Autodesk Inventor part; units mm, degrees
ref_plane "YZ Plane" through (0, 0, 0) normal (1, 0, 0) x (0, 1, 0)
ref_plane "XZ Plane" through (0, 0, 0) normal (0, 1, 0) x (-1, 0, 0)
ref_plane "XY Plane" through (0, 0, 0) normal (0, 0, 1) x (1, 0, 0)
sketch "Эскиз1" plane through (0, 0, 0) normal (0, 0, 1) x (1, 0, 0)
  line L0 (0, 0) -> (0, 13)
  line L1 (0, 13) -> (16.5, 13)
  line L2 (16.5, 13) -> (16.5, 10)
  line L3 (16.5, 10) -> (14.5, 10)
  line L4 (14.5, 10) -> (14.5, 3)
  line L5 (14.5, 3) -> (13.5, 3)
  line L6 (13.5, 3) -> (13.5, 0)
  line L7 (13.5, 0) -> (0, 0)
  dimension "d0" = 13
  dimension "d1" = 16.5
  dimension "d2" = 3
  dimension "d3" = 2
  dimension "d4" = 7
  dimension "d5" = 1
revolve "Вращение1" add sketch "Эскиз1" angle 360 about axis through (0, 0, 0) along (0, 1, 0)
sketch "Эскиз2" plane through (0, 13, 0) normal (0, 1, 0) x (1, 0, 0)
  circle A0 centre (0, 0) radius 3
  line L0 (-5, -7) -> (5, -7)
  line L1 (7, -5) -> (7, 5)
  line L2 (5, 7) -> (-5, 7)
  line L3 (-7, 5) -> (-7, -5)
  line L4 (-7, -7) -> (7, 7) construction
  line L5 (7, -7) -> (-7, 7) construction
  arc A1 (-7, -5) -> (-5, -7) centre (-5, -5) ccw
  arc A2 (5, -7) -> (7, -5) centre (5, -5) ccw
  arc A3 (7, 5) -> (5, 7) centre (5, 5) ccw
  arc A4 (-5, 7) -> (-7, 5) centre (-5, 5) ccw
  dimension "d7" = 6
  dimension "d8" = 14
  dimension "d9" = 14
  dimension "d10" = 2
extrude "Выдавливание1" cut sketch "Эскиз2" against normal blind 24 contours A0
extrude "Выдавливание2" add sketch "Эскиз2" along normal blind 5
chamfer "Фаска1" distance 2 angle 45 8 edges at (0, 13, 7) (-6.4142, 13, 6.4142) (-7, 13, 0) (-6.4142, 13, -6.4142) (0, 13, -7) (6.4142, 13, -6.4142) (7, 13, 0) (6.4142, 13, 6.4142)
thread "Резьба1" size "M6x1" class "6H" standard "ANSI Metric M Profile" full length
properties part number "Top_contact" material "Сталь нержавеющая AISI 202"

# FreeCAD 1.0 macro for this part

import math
import FreeCAD as App
import Part
import Sketcher
Q = App.Units.Quantity


def edges_at(feature, points):
    """Names of the edges that pass closest to the given points."""
    edges = feature.Shape.Edges
    near = lambda p: min(range(len(edges)), key=lambda i: edges[i].distToShape(Part.Vertex(*p))[0])
    return sorted({f"Edge{near(p) + 1}" for p in points})

doc = App.newDocument("Part")
body = doc.addObject("PartDesign::Body", "Body")

sketch1 = body.newObject("Sketcher::SketchObject", "Sketch")
sketch1.AttachmentSupport = (doc.getObject("XY_Plane"), [""])
sketch1.MapMode = "FlatFace"
sketch1.addGeometry(Part.LineSegment(App.Vector(0, 13, 0), App.Vector(0, 0, 0)), False)
sketch1.addGeometry(Part.LineSegment(App.Vector(0, 0, 0), App.Vector(13.5, 0, 0)), False)
sketch1.addGeometry(Part.LineSegment(App.Vector(13.5, 0, 0), App.Vector(13.5, 3, 0)), False)
sketch1.addGeometry(Part.LineSegment(App.Vector(13.5, 3, 0), App.Vector(14.5, 3, 0)), False)
sketch1.addGeometry(Part.LineSegment(App.Vector(14.5, 3, 0), App.Vector(14.5, 10, 0)), False)
sketch1.addGeometry(Part.LineSegment(App.Vector(14.5, 10, 0), App.Vector(16.5, 10, 0)), False)
sketch1.addGeometry(Part.LineSegment(App.Vector(16.5, 10, 0), App.Vector(16.5, 13, 0)), False)
sketch1.addGeometry(Part.LineSegment(App.Vector(16.5, 13, 0), App.Vector(0, 13, 0)), False)
sketch1.addConstraint(Sketcher.Constraint("Coincident", 0, 2, 1, 1))
sketch1.addConstraint(Sketcher.Constraint("Coincident", 1, 2, 2, 1))
sketch1.addConstraint(Sketcher.Constraint("Coincident", 2, 2, 3, 1))
sketch1.addConstraint(Sketcher.Constraint("Coincident", 3, 2, 4, 1))
sketch1.addConstraint(Sketcher.Constraint("Coincident", 4, 2, 5, 1))
sketch1.addConstraint(Sketcher.Constraint("Coincident", 5, 2, 6, 1))
sketch1.addConstraint(Sketcher.Constraint("Coincident", 6, 2, 7, 1))
sketch1.addConstraint(Sketcher.Constraint("Coincident", 7, 2, 0, 1))
sketch1.addConstraint(Sketcher.Constraint("Vertical", 0))
sketch1.addConstraint(Sketcher.Constraint("Horizontal", 1))
sketch1.addConstraint(Sketcher.Constraint("Vertical", 2))
sketch1.addConstraint(Sketcher.Constraint("Horizontal", 3))
sketch1.addConstraint(Sketcher.Constraint("Vertical", 4))
sketch1.addConstraint(Sketcher.Constraint("Horizontal", 5))
sketch1.addConstraint(Sketcher.Constraint("Vertical", 6))
sketch1.addConstraint(Sketcher.Constraint("Horizontal", 7))
sketch1.addConstraint(Sketcher.Constraint("Coincident", 0, 2, -1, 1))
sketch1.addConstraint(Sketcher.Constraint("Equal", 2, 6))
sketch1.addConstraint(Sketcher.Constraint("DistanceX", 3, 1, 3, 2, Q("1 mm")))
sketch1.addConstraint(Sketcher.Constraint("DistanceX", 5, 1, 5, 2, Q("2 mm")))
sketch1.addConstraint(Sketcher.Constraint("DistanceY", 0, 2, 0, 1, Q("13 mm")))
sketch1.addConstraint(Sketcher.Constraint("DistanceY", 2, 1, 2, 2, Q("3 mm")))
sketch1.addConstraint(Sketcher.Constraint("DistanceX", 7, 2, 7, 1, Q("16.5 mm")))
revolution = body.newObject("PartDesign::Revolution", "Revolution")
revolution.Profile = sketch1
revolution.ReferenceAxis = (sketch1, ["V_Axis"])
revolution.Angle = 360

sketch2 = body.newObject("Sketcher::SketchObject", "Sketch001")
sketch2.AttachmentSupport = (doc.getObject("XZ_Plane"), [""])
sketch2.MapMode = "FlatFace"
sketch2.AttachmentOffset = App.Placement(App.Vector(0, 0, -13), App.Rotation())
sketch2.addGeometry(Part.Circle(App.Vector(0, 0, 0), App.Vector(0, 0, 1), 3), False)
sketch2.addConstraint(Sketcher.Constraint("Coincident", 0, 3, -1, 1))
sketch2.addConstraint(Sketcher.Constraint("Diameter", 0, Q("6 mm")))
pocket1 = body.newObject("PartDesign::Pocket", "Pocket")
pocket1.Profile = sketch2
pocket1.Length = 24
pocket1.Reversed = True

sketch3 = body.newObject("Sketcher::SketchObject", "Sketch002")
sketch3.AttachmentSupport = (doc.getObject("XZ_Plane"), [""])
sketch3.MapMode = "FlatFace"
sketch3.AttachmentOffset = App.Placement(App.Vector(0, 0, -13), App.Rotation())
sketch3.addGeometry(Part.ArcOfCircle(Part.Circle(App.Vector(-5, 5, 0), App.Vector(0, 0, 1), 2), math.radians(90), math.radians(180)), False)
sketch3.addGeometry(Part.LineSegment(App.Vector(-5, 7, 0), App.Vector(5, 7, 0)), False)
sketch3.addGeometry(Part.ArcOfCircle(Part.Circle(App.Vector(5, 5, 0), App.Vector(0, 0, 1), 2), math.radians(0), math.radians(90)), False)
sketch3.addGeometry(Part.LineSegment(App.Vector(7, 5, 0), App.Vector(7, -5, 0)), False)
sketch3.addGeometry(Part.ArcOfCircle(Part.Circle(App.Vector(5, -5, 0), App.Vector(0, 0, 1), 2), math.radians(-90), math.radians(0)), False)
sketch3.addGeometry(Part.LineSegment(App.Vector(5, -7, 0), App.Vector(-5, -7, 0)), False)
sketch3.addGeometry(Part.ArcOfCircle(Part.Circle(App.Vector(-5, -5, 0), App.Vector(0, 0, 1), 2), math.radians(180), math.radians(270)), False)
sketch3.addGeometry(Part.LineSegment(App.Vector(-7, -5, 0), App.Vector(-7, 5, 0)), False)
sketch3.addGeometry(Part.Circle(App.Vector(0, 0, 0), App.Vector(0, 0, 1), 3), False)
sketch3.addConstraint(Sketcher.Constraint("Tangent", 0, 1, 1, 1))
sketch3.addConstraint(Sketcher.Constraint("Tangent", 1, 2, 2, 2))
sketch3.addConstraint(Sketcher.Constraint("Tangent", 2, 1, 3, 1))
sketch3.addConstraint(Sketcher.Constraint("Tangent", 3, 2, 4, 2))
sketch3.addConstraint(Sketcher.Constraint("Tangent", 4, 1, 5, 1))
sketch3.addConstraint(Sketcher.Constraint("Tangent", 5, 2, 6, 2))
sketch3.addConstraint(Sketcher.Constraint("Tangent", 6, 1, 7, 1))
sketch3.addConstraint(Sketcher.Constraint("Tangent", 7, 2, 0, 2))
sketch3.addConstraint(Sketcher.Constraint("Horizontal", 1))
sketch3.addConstraint(Sketcher.Constraint("Vertical", 3))
sketch3.addConstraint(Sketcher.Constraint("Horizontal", 5))
sketch3.addConstraint(Sketcher.Constraint("Vertical", 7))
sketch3.addConstraint(Sketcher.Constraint("Coincident", 8, 3, -1, 1))
sketch3.addConstraint(Sketcher.Constraint("Equal", 0, 2))
sketch3.addConstraint(Sketcher.Constraint("Equal", 2, 4))
sketch3.addConstraint(Sketcher.Constraint("Equal", 4, 6))
sketch3.addConstraint(Sketcher.Constraint("Symmetric", 0, 3, 4, 3, -1, 1))
sketch3.addConstraint(Sketcher.Constraint("Equal", 5, 3))
sketch3.addConstraint(Sketcher.Constraint("Diameter", 8, Q("6 mm")))
sketch3.addConstraint(Sketcher.Constraint("Radius", 0, Q("2 mm")))
sketch3.addConstraint(Sketcher.Constraint("DistanceX", 1, 1, 1, 2, Q("10 mm")))
pad1 = body.newObject("PartDesign::Pad", "Pad")
pad1.Profile = sketch3
pad1.Length = 5
pad1.Reversed = True
doc.recompute()

chamfer = body.newObject("PartDesign::Chamfer", "Chamfer")
chamfer.Base = (pad1, edges_at(pad1, [
    (0, 13, 7),
    (-6.414, 13, 6.414),
    (-7, 13, 0),
    (-6.414, 13, -6.414),
    (0, 13, -7),
    (6.414, 13, -6.414),
    (7, 13, 0),
    (6.414, 13, 6.414),
]))
chamfer.Size = 2

doc.recompute()
